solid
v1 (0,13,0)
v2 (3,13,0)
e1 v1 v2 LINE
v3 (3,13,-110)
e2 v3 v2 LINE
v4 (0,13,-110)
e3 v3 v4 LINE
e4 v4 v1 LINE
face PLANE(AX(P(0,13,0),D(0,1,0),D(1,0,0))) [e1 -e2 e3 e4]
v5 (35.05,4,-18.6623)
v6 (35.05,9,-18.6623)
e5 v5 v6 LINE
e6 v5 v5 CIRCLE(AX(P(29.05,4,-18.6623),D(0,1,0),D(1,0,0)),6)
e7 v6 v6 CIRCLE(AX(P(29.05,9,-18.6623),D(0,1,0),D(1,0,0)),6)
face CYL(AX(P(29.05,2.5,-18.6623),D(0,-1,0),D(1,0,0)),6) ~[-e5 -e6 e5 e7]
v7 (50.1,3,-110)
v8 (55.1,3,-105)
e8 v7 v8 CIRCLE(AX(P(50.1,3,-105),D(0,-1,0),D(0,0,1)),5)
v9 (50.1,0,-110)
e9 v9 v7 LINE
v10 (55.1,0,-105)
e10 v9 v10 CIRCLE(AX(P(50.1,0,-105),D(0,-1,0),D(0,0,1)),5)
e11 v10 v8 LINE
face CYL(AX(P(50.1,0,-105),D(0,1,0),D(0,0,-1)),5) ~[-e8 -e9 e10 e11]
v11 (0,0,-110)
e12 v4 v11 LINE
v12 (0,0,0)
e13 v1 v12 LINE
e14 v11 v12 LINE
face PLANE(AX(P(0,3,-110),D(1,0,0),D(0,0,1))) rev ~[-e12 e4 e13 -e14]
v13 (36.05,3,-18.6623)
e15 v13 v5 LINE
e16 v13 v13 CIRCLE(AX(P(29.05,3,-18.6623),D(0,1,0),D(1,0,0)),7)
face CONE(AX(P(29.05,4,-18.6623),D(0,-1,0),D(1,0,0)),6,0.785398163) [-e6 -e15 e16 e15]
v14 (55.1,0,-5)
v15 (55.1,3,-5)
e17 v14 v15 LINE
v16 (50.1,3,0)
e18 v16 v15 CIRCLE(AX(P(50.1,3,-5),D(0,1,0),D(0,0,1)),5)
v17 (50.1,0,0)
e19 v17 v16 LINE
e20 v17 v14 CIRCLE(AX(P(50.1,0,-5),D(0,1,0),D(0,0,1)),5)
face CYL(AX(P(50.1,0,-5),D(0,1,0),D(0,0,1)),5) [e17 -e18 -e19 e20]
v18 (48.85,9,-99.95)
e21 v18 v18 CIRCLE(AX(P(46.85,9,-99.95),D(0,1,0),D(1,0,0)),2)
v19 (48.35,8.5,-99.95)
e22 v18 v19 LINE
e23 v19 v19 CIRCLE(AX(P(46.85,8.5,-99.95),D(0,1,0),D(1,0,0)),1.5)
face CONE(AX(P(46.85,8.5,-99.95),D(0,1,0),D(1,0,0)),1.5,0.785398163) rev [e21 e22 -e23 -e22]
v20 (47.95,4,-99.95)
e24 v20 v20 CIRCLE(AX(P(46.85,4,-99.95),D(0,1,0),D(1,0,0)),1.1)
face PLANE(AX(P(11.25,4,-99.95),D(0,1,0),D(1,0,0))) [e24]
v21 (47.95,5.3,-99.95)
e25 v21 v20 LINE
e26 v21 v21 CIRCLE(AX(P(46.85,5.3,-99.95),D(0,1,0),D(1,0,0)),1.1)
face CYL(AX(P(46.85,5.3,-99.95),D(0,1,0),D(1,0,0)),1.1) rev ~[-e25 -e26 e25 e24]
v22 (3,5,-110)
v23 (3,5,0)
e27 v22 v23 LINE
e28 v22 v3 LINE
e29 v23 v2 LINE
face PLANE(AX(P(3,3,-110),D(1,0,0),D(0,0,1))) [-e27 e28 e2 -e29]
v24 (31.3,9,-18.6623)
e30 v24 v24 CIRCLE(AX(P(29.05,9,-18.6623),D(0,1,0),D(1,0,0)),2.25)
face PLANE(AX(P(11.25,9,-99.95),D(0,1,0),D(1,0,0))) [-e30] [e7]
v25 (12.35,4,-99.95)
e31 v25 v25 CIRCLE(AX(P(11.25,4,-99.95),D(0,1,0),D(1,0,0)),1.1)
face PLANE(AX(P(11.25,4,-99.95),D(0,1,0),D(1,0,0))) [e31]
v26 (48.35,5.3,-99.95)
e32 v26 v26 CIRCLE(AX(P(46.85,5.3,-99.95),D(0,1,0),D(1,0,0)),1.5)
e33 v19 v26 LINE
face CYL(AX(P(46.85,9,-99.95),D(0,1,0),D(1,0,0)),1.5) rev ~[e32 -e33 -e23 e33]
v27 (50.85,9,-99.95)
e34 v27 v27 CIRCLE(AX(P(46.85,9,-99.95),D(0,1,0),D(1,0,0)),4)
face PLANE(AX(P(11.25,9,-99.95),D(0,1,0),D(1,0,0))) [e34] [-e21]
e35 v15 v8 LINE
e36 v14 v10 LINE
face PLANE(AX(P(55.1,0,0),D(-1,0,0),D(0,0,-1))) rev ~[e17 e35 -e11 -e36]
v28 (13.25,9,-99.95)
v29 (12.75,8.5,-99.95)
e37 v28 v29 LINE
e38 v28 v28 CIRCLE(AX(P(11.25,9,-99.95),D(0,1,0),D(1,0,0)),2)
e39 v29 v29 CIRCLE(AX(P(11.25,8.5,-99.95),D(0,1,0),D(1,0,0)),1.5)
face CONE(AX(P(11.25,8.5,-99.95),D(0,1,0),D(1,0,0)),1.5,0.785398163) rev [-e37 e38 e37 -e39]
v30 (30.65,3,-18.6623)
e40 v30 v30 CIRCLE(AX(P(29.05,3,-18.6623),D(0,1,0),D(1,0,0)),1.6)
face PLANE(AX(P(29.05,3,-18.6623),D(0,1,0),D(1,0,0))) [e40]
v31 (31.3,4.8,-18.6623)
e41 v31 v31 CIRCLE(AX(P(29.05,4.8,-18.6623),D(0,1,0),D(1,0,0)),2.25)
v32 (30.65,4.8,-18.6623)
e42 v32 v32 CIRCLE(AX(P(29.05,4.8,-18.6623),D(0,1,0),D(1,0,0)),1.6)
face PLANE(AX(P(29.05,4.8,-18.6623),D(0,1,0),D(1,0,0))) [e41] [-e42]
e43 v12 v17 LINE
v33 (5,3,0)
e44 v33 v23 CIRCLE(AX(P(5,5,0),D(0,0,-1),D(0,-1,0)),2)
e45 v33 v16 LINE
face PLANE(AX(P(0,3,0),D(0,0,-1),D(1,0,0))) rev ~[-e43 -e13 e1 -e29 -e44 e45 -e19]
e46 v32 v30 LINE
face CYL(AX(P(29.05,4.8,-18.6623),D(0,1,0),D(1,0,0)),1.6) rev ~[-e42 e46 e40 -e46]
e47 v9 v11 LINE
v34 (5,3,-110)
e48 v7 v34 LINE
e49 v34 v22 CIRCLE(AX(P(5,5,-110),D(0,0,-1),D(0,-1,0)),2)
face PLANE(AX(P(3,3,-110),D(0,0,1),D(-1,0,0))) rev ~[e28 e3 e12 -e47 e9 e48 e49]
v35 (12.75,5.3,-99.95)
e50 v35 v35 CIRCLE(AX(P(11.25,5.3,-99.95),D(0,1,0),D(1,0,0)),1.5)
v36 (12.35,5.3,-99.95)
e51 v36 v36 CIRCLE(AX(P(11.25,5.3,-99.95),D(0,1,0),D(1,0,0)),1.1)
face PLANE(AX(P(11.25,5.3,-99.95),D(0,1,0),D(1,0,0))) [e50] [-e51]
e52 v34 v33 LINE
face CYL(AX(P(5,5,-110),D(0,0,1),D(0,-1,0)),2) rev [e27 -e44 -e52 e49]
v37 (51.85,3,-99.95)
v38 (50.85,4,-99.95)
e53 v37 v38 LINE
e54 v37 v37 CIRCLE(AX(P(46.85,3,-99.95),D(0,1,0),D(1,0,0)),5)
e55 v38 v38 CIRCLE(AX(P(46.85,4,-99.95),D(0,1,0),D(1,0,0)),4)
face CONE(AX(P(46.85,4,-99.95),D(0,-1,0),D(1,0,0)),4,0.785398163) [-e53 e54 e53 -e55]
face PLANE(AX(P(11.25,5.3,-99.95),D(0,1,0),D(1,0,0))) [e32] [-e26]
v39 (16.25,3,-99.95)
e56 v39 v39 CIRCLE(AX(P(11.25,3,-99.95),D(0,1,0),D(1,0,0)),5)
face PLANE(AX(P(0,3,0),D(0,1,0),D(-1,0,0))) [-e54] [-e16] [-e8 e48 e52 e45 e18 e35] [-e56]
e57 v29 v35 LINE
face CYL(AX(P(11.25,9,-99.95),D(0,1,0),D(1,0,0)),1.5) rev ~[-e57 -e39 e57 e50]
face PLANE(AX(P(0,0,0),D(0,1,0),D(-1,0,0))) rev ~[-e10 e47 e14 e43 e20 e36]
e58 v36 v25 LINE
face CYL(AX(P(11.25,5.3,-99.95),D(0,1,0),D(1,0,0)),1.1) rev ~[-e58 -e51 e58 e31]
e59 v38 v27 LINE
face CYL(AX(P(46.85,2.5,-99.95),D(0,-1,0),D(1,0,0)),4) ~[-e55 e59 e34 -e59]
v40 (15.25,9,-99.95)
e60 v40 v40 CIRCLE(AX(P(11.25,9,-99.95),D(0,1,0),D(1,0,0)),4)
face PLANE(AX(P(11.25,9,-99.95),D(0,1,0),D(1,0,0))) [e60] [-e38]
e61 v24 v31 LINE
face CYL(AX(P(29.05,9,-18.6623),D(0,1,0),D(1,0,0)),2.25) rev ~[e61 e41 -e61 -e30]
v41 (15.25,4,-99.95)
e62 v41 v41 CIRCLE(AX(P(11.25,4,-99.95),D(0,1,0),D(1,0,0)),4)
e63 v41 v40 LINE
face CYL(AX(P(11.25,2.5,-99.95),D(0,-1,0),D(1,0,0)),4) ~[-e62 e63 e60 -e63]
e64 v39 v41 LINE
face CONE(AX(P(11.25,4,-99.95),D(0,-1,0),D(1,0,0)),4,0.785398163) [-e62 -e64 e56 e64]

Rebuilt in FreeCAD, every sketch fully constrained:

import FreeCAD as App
import Part
import Sketcher

V = App.Vector
Q = App.Units.Quantity


def edges_at(feature, points):
    """Names of the edges that pass closest to the given points."""
    edges = feature.Shape.Edges
    near = lambda p: min(range(len(edges)), key=lambda i: edges[i].distToShape(Part.Vertex(*p))[0])
    return sorted({f"Edge{near(p) + 1}" for p in points})

doc = App.newDocument("Part")
body = doc.addObject("PartDesign::Body", "Body")

sketch1 = body.newObject("Sketcher::SketchObject", "Sketch")
sketch1.AttachmentSupport = (doc.getObject("XZ_Plane"), [""])
sketch1.MapMode = "FlatFace"
sketch1.addGeometry(Part.LineSegment(V(0, -110, 0), V(0, 0, 0)), False)
sketch1.addGeometry(Part.LineSegment(V(0, 0, 0), V(55, 0, 0)), False)
sketch1.addGeometry(Part.LineSegment(V(55, 0, 0), V(55, -110, 0)), False)
sketch1.addGeometry(Part.LineSegment(V(55, -110, 0), V(0, -110, 0)), False)
sketch1.addConstraint(Sketcher.Constraint("Coincident", 0, 2, 1, 1))
sketch1.addConstraint(Sketcher.Constraint("Coincident", 1, 2, 2, 1))
sketch1.addConstraint(Sketcher.Constraint("Coincident", 2, 2, 3, 1))
sketch1.addConstraint(Sketcher.Constraint("Coincident", 3, 2, 0, 1))
sketch1.addConstraint(Sketcher.Constraint("Vertical", 0))
sketch1.addConstraint(Sketcher.Constraint("Horizontal", 1))
sketch1.addConstraint(Sketcher.Constraint("Vertical", 2))
sketch1.addConstraint(Sketcher.Constraint("Horizontal", 3))
sketch1.addConstraint(Sketcher.Constraint("Coincident", 0, 2, -1, 1))
sketch1.addConstraint(Sketcher.Constraint("DistanceY", 0, 1, 0, 2, Q("110 mm")))
sketch1.addConstraint(Sketcher.Constraint("DistanceX", 1, 1, 1, 2, Q("55.1 mm")))
pad1 = body.newObject("PartDesign::Pad", "Pad")
pad1.Profile = sketch1
pad1.Length = 3
pad1.Reversed = True

sketch2 = body.newObject("Sketcher::SketchObject", "Sketch001")
sketch2.AttachmentSupport = (doc.getObject("XZ_Plane"), [""])
sketch2.MapMode = "FlatFace"
sketch2.AttachmentOffset = App.Placement(V(0, 0, -3), App.Rotation())
sketch2.addGeometry(Part.Circle(V(11.2, -100, 0), V(0, 0, 1), 4), False)
sketch2.addGeometry(Part.Circle(V(46.9, -100, 0), V(0, 0, 1), 4), False)
sketch2.addGeometry(Part.Circle(V(29.1, -18.7, 0), V(0, 0, 1), 6), False)
sketch2.addConstraint(Sketcher.Constraint("Equal", 0, 1))
sketch2.addConstraint(Sketcher.Constraint("Horizontal", 0, 3, 1, 3))
sketch2.addConstraint(Sketcher.Constraint("Diameter", 0, Q("8 mm")))
sketch2.addConstraint(Sketcher.Constraint("Diameter", 2, Q("12 mm")))
sketch2.addConstraint(Sketcher.Constraint("DistanceX", 0, 3, 1, 3, Q("35.6 mm")))
sketch2.addConstraint(Sketcher.Constraint("DistanceX", 0, 3, 2, 3, Q("17.8 mm")))
sketch2.addConstraint(Sketcher.Constraint("DistanceX", -1, 1, 0, 3, Q("11.25 mm")))
sketch2.addConstraint(Sketcher.Constraint("DistanceY", 0, 3, -1, 1, Q("99.95 mm")))
sketch2.addConstraint(Sketcher.Constraint("DistanceY", 2, 3, -1, 1, Q("18.6623 mm")))
pocket1 = body.newObject("PartDesign::Pocket", "Pocket")
pocket1.Profile = sketch2
pocket1.Length = 0.5
pocket1.Reversed = True

sketch3 = body.newObject("Sketcher::SketchObject", "Sketch002")
sketch3.AttachmentSupport = (doc.getObject("XZ_Plane"), [""])
sketch3.MapMode = "FlatFace"
sketch3.AttachmentOffset = App.Placement(V(0, 0, -2.5), App.Rotation())
sketch3.addGeometry(Part.Circle(V(11.2, -100, 0), V(0, 0, 1), 4), False)
sketch3.addGeometry(Part.Circle(V(46.9, -100, 0), V(0, 0, 1), 4), False)
sketch3.addGeometry(Part.Circle(V(29.1, -18.7, 0), V(0, 0, 1), 6), False)
sketch3.addConstraint(Sketcher.Constraint("Equal", 0, 1))
sketch3.addConstraint(Sketcher.Constraint("Horizontal", 0, 3, 1, 3))
sketch3.addConstraint(Sketcher.Constraint("Diameter", 2, Q("12 mm")))
sketch3.addConstraint(Sketcher.Constraint("Diameter", 0, Q("8 mm")))
sketch3.addConstraint(Sketcher.Constraint("DistanceX", 0, 3, 1, 3, Q("35.6 mm")))
sketch3.addConstraint(Sketcher.Constraint("DistanceX", 0, 3, 2, 3, Q("17.8 mm")))
sketch3.addConstraint(Sketcher.Constraint("DistanceX", -1, 1, 0, 3, Q("11.25 mm")))
sketch3.addConstraint(Sketcher.Constraint("DistanceY", 0, 3, -1, 1, Q("99.95 mm")))
sketch3.addConstraint(Sketcher.Constraint("DistanceY", 2, 3, -1, 1, Q("18.6623 mm")))
pad2 = body.newObject("PartDesign::Pad", "Pad001")
pad2.Profile = sketch3
pad2.Length = 6.5
pad2.Reversed = True

sketch4 = body.newObject("Sketcher::SketchObject", "Sketch003")
sketch4.AttachmentSupport = (doc.getObject("XZ_Plane"), [""])
sketch4.MapMode = "FlatFace"
sketch4.AttachmentOffset = App.Placement(V(0, 0, -9), App.Rotation())
sketch4.addGeometry(Part.Circle(V(11.2, -100, 0), V(0, 0, 1), 1.5), False)
sketch4.addGeometry(Part.Circle(V(46.9, -100, 0), V(0, 0, 1), 1.5), False)
sketch4.addConstraint(Sketcher.Constraint("Equal", 0, 1))
sketch4.addConstraint(Sketcher.Constraint("Horizontal", 0, 3, 1, 3))
sketch4.addConstraint(Sketcher.Constraint("Diameter", 0, Q("3 mm")))
sketch4.addConstraint(Sketcher.Constraint("DistanceX", 0, 3, 1, 3, Q("35.6 mm")))
sketch4.addConstraint(Sketcher.Constraint("DistanceX", -1, 1, 0, 3, Q("11.25 mm")))
sketch4.addConstraint(Sketcher.Constraint("DistanceY", 0, 3, -1, 1, Q("99.95 mm")))
pocket2 = body.newObject("PartDesign::Pocket", "Pocket001")
pocket2.Profile = sketch4
pocket2.Length = 3.7
pocket2.Reversed = True
doc.recompute()

chamfer = body.newObject("PartDesign::Chamfer", "Chamfer")
chamfer.Base = (pocket2, edges_at(pocket2, [(7.25, 3, -99.95), (42.85, 3, -99.95), (23.05, 3, -18.662)]))
chamfer.Size = 1
doc.recompute()

chamfer2 = body.newObject("PartDesign::Chamfer", "Chamfer001")
chamfer2.Base = (chamfer, edges_at(chamfer, [(9.75, 9, -99.95), (45.35, 9, -99.95)]))
chamfer2.Size = 0.5

sketch5 = body.newObject("Sketcher::SketchObject", "Sketch004")
sketch5.AttachmentSupport = (doc.getObject("XZ_Plane"), [""])
sketch5.MapMode = "FlatFace"
sketch5.AttachmentOffset = App.Placement(V(0, 0, -5.3), App.Rotation())
sketch5.addGeometry(Part.Circle(V(11.2, -100, 0), V(0, 0, 1), 1.1), False)
sketch5.addGeometry(Part.Circle(V(46.9, -100, 0), V(0, 0, 1), 1.1), False)
sketch5.addConstraint(Sketcher.Constraint("Equal", 0, 1))
sketch5.addConstraint(Sketcher.Constraint("Horizontal", 0, 3, 1, 3))
sketch5.addConstraint(Sketcher.Constraint("Diameter", 0, Q("2.2 mm")))
sketch5.addConstraint(Sketcher.Constraint("DistanceX", 0, 3, 1, 3, Q("35.6 mm")))
sketch5.addConstraint(Sketcher.Constraint("DistanceX", -1, 1, 0, 3, Q("11.25 mm")))
sketch5.addConstraint(Sketcher.Constraint("DistanceY", 0, 3, -1, 1, Q("99.95 mm")))
pocket3 = body.newObject("PartDesign::Pocket", "Pocket002")
pocket3.Profile = sketch5
pocket3.Length = 1.3
pocket3.Reversed = True

sketch6 = body.newObject("Sketcher::SketchObject", "Sketch005")
sketch6.AttachmentSupport = (doc.getObject("XZ_Plane"), [""])
sketch6.MapMode = "FlatFace"
sketch6.AttachmentOffset = App.Placement(V(0, 0, -9), App.Rotation())
sketch6.addGeometry(Part.Circle(V(29.1, -18.7, 0), V(0, 0, 1), 2.2), False)
sketch6.addConstraint(Sketcher.Constraint("Diameter", 0, Q("4.5 mm")))
sketch6.addConstraint(Sketcher.Constraint("DistanceX", -1, 1, 0, 3, Q("29.05 mm")))
sketch6.addConstraint(Sketcher.Constraint("DistanceY", 0, 3, -1, 1, Q("18.6623 mm")))
pocket4 = body.newObject("PartDesign::Pocket", "Pocket003")
pocket4.Profile = sketch6
pocket4.Length = 4.2
pocket4.Reversed = True

sketch7 = body.newObject("Sketcher::SketchObject", "Sketch006")
sketch7.AttachmentSupport = (doc.getObject("XZ_Plane"), [""])
sketch7.MapMode = "FlatFace"
sketch7.AttachmentOffset = App.Placement(V(0, 0, -4.8), App.Rotation())
sketch7.addGeometry(Part.Circle(V(29.1, -18.7, 0), V(0, 0, 1), 1.6), False)
sketch7.addConstraint(Sketcher.Constraint("Diameter", 0, Q("3.2 mm")))
sketch7.addConstraint(Sketcher.Constraint("DistanceX", -1, 1, 0, 3, Q("29.05 mm")))
sketch7.addConstraint(Sketcher.Constraint("DistanceY", 0, 3, -1, 1, Q("18.6623 mm")))
pocket5 = body.newObject("PartDesign::Pocket", "Pocket004")
pocket5.Profile = sketch7
pocket5.Length = 1.8
pocket5.Reversed = True

sketch8 = body.newObject("Sketcher::SketchObject", "Sketch007")
sketch8.AttachmentSupport = (doc.getObject("XZ_Plane"), [""])
sketch8.MapMode = "FlatFace"
sketch8.AttachmentOffset = App.Placement(V(0, 0, -3), App.Rotation())
sketch8.addGeometry(Part.LineSegment(V(0, 0, 0), V(3, 0, 0)), False)
sketch8.addGeometry(Part.LineSegment(V(3, 0, 0), V(3, -110, 0)), False)
sketch8.addGeometry(Part.LineSegment(V(3, -110, 0), V(0, -110, 0)), False)
sketch8.addGeometry(Part.LineSegment(V(0, -110, 0), V(0, 0, 0)), False)
sketch8.addConstraint(Sketcher.Constraint("Coincident", 0, 2, 1, 1))
sketch8.addConstraint(Sketcher.Constraint("Coincident", 1, 2, 2, 1))
sketch8.addConstraint(Sketcher.Constraint("Coincident", 2, 2, 3, 1))
sketch8.addConstraint(Sketcher.Constraint("Coincident", 3, 2, 0, 1))
sketch8.addConstraint(Sketcher.Constraint("Horizontal", 0))
sketch8.addConstraint(Sketcher.Constraint("Vertical", 1))
sketch8.addConstraint(Sketcher.Constraint("Horizontal", 2))
sketch8.addConstraint(Sketcher.Constraint("Vertical", 3))
sketch8.addConstraint(Sketcher.Constraint("Coincident", 3, 2, -1, 1))
sketch8.addConstraint(Sketcher.Constraint("DistanceX", 0, 1, 0, 2, Q("3 mm")))
sketch8.addConstraint(Sketcher.Constraint("DistanceY", 1, 2, 1, 1, Q("110 mm")))
pad3 = body.newObject("PartDesign::Pad", "Pad002")
pad3.Profile = sketch8
pad3.Length = 10
pad3.Reversed = True
doc.recompute()

fillet = body.newObject("PartDesign::Fillet", "Fillet")
fillet.Base = (pad3, edges_at(pad3, [(55.1, 1.5, -110), (55.1, 1.5, 0)]))
fillet.Radius = 5
doc.recompute()

fillet2 = body.newObject("PartDesign::Fillet", "Fillet001")
fillet2.Base = (fillet, edges_at(fillet, [(3, 3, -55)]))
fillet2.Radius = 2

doc.recompute()
